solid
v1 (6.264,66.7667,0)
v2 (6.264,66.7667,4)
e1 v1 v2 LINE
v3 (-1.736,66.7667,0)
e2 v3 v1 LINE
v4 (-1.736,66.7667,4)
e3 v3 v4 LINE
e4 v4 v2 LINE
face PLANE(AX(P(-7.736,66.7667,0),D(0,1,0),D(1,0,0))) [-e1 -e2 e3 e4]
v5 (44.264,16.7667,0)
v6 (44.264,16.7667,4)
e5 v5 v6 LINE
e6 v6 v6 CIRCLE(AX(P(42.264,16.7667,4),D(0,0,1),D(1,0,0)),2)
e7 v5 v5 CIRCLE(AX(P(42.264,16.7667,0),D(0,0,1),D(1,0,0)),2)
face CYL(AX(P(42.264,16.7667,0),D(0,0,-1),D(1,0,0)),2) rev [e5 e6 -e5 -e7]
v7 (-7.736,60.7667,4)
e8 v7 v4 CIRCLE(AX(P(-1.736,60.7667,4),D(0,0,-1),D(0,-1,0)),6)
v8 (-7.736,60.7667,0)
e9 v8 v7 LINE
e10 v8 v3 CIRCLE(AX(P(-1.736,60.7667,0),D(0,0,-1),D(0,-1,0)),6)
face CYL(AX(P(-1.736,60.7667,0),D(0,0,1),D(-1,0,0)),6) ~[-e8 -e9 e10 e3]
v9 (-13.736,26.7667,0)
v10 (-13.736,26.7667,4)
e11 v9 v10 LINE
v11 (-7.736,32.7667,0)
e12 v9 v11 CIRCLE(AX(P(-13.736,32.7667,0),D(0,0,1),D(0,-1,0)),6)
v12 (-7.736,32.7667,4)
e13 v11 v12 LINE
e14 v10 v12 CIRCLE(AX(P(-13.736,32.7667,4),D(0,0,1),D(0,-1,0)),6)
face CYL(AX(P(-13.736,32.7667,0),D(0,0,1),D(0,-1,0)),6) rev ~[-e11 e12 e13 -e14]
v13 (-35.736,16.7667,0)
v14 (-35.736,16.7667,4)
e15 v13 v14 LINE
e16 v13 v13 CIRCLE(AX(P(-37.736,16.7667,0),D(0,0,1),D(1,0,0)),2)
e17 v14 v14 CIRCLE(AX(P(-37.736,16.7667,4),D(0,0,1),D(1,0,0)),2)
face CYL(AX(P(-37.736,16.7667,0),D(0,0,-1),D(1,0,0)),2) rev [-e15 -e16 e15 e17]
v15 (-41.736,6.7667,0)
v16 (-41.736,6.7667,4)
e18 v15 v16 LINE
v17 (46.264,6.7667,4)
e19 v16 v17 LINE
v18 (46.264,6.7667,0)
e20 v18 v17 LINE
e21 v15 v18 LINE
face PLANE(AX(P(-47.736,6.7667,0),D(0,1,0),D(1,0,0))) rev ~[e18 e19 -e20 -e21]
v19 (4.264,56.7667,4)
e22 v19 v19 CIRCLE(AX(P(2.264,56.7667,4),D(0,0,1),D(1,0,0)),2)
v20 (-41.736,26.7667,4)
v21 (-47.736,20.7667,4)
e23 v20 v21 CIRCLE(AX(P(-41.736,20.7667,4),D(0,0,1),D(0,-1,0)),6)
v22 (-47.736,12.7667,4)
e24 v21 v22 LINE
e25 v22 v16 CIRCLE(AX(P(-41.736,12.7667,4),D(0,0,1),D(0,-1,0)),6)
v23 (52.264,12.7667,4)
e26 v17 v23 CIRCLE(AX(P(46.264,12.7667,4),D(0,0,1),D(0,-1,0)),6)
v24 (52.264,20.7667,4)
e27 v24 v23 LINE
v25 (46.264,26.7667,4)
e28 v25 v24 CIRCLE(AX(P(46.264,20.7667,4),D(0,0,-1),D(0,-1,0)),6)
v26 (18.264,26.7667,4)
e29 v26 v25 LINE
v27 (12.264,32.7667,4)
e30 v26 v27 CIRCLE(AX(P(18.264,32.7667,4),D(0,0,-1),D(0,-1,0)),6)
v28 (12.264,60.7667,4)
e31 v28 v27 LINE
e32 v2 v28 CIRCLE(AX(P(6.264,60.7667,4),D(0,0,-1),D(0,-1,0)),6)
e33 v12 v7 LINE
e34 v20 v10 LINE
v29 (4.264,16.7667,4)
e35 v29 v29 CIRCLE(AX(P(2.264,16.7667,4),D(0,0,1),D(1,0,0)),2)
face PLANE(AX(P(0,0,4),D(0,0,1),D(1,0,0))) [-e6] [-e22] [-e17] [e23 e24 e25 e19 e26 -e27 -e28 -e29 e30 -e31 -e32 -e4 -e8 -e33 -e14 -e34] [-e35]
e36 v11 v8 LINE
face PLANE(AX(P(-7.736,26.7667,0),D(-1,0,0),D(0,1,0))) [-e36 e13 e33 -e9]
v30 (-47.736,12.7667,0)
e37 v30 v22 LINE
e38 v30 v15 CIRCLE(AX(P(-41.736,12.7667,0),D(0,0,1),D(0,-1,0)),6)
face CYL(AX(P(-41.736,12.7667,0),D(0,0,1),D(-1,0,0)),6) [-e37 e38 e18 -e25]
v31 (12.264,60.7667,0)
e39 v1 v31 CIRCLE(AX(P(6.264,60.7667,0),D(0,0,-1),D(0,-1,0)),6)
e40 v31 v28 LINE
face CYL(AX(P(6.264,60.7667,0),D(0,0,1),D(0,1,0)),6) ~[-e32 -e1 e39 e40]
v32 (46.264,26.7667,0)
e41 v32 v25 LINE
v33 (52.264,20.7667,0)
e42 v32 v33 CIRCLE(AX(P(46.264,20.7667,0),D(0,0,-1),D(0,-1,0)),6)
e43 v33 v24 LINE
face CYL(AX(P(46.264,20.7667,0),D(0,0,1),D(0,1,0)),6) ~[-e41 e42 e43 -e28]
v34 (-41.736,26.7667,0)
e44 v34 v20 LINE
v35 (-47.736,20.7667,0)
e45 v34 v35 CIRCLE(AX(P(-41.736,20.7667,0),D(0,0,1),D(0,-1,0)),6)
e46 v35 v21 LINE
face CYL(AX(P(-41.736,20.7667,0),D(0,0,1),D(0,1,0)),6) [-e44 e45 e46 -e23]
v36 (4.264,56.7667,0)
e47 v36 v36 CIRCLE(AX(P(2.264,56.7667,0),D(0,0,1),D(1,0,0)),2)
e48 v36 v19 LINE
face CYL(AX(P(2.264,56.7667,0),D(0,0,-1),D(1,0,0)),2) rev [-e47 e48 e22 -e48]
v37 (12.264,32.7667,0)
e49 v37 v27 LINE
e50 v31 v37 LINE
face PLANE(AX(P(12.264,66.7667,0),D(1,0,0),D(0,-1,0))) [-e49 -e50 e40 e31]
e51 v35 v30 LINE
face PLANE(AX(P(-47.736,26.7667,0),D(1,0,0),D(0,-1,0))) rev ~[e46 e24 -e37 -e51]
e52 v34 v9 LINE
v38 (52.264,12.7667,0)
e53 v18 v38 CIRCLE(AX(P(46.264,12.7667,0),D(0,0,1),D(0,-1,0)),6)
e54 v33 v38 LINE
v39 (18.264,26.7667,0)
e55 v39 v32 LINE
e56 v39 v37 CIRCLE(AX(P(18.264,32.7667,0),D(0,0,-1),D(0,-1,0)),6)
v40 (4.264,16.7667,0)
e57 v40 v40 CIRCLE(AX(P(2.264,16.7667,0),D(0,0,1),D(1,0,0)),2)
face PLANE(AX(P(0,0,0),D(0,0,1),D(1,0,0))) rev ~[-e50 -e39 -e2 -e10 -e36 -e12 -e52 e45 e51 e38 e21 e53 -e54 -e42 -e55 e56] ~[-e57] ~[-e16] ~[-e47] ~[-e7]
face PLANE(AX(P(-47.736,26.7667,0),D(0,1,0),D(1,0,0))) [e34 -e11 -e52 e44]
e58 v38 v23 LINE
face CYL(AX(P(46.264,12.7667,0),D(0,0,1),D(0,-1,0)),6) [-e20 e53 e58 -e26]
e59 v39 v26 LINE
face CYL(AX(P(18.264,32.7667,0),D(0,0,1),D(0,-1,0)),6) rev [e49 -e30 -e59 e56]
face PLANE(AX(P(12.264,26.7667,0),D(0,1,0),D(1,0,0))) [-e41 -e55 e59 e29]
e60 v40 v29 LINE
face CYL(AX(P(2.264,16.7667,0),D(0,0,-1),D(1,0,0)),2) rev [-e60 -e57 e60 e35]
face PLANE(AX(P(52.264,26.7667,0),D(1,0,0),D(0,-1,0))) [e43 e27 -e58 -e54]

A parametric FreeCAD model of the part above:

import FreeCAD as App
import Part
import Sketcher
from FreeCAD import Vector


def edges_at(feature, points):
    """Names of the edges that pass closest to the given points."""
    edges = feature.Shape.Edges
    near = lambda p: min(range(len(edges)), key=lambda i: edges[i].distToShape(Part.Vertex(*p))[0])
    return sorted({f"Edge{near(p) + 1}" for p in points})

doc = App.newDocument("Part")
params = doc.addObject("Spreadsheet::Sheet", "Params")
for row, (alias, value) in enumerate([
    ("sketch1_diameter", "4 mm"),
    ("sketch1_width", "40 mm"),
    ("sketch1_width2", "100 mm"),
    ("pad1_length", "4 mm"),
    ("fillet_radius", "6 mm"),
], start=1):
    params.set(f"A{row}", alias)
    params.set(f"B{row}", "=" + value)
    params.setAlias(f"B{row}", alias)

body = doc.addObject("PartDesign::Body", "Body")

# Sketch on XY plane
sketch1 = body.newObject("Sketcher::SketchObject", "Sketch")
sketch1.AttachmentSupport = (doc.getObject("XY_Plane"), [""])
sketch1.MapMode = "FlatFace"
sketch1.addGeometry(Part.LineSegment(Vector(-7.736, 26.7667, 0), Vector(-47.736, 26.7667, 0)), False)
sketch1.addGeometry(Part.LineSegment(Vector(-47.736, 26.7667, 0), Vector(-47.736, 6.7667, 0)), False)
sketch1.addGeometry(Part.LineSegment(Vector(-47.736, 6.7667, 0), Vector(52.264, 6.7667, 0)), False)
sketch1.addGeometry(Part.LineSegment(Vector(52.264, 6.7667, 0), Vector(52.264, 26.7667, 0)), False)
sketch1.addGeometry(Part.LineSegment(Vector(52.264, 26.7667, 0), Vector(12.264, 26.7667, 0)), False)
sketch1.addGeometry(Part.LineSegment(Vector(12.264, 26.7667, 0), Vector(12.264, 66.7667, 0)), False)
sketch1.addGeometry(Part.LineSegment(Vector(12.264, 66.7667, 0), Vector(-7.736, 66.7667, 0)), False)
sketch1.addGeometry(Part.LineSegment(Vector(-7.736, 66.7667, 0), Vector(-7.736, 26.7667, 0)), False)
sketch1.addGeometry(Part.Circle(Vector(-37.736, 16.7667, 0), Vector(0, 0, 1), 2), False)
sketch1.addGeometry(Part.Circle(Vector(2.264, 16.7667, 0), Vector(0, 0, 1), 2), False)
sketch1.addGeometry(Part.Circle(Vector(42.264, 16.7667, 0), Vector(0, 0, 1), 2), False)
sketch1.addGeometry(Part.Circle(Vector(2.264, 56.7667, 0), Vector(0, 0, 1), 2), False)
sketch1.addConstraint(Sketcher.Constraint("Coincident", 0, 2, 1, 1))
sketch1.addConstraint(Sketcher.Constraint("Coincident", 1, 2, 2, 1))
sketch1.addConstraint(Sketcher.Constraint("Coincident", 2, 2, 3, 1))
sketch1.addConstraint(Sketcher.Constraint("Coincident", 3, 2, 4, 1))
sketch1.addConstraint(Sketcher.Constraint("Coincident", 4, 2, 5, 1))
sketch1.addConstraint(Sketcher.Constraint("Coincident", 5, 2, 6, 1))
sketch1.addConstraint(Sketcher.Constraint("Coincident", 6, 2, 7, 1))
sketch1.addConstraint(Sketcher.Constraint("Coincident", 7, 2, 0, 1))
sketch1.addConstraint(Sketcher.Constraint("Horizontal", 0))
sketch1.addConstraint(Sketcher.Constraint("Vertical", 1))
sketch1.addConstraint(Sketcher.Constraint("Horizontal", 2))
sketch1.addConstraint(Sketcher.Constraint("Vertical", 3))
sketch1.addConstraint(Sketcher.Constraint("Horizontal", 4))
sketch1.addConstraint(Sketcher.Constraint("Vertical", 5))
sketch1.addConstraint(Sketcher.Constraint("Horizontal", 6))
sketch1.addConstraint(Sketcher.Constraint("Vertical", 7))
sketch1.addConstraint(Sketcher.Constraint("Equal", 8, 9))
sketch1.addConstraint(Sketcher.Constraint("Equal", 9, 10))
sketch1.addConstraint(Sketcher.Constraint("Equal", 10, 11))
sketch1.addConstraint(Sketcher.Constraint("Horizontal", 8, 3, 9, 3))
sketch1.addConstraint(Sketcher.Constraint("Horizontal", 9, 3, 10, 3))
sketch1.addConstraint(Sketcher.Constraint("Horizontal", 0, 2, 3, 2))
sketch1.addConstraint(Sketcher.Constraint("Vertical", 9, 3, 11, 3))
sketch1.addConstraint(Sketcher.Constraint("Equal", 0, 4))
sketch1.addConstraint(Sketcher.Constraint("Equal", 6, 1))
sketch1.addConstraint(Sketcher.Constraint("Equal", 4, 5))
sketch1.addConstraint(Sketcher.Constraint("Diameter", 8, 4.0))
sketch1.addConstraint(Sketcher.Constraint("DistanceX", 0, 2, 0, 1, 40.0))
sketch1.addConstraint(Sketcher.Constraint("DistanceX", 2, 1, 2, 2, 100.0))
sketch1.addConstraint(Sketcher.Constraint("DistanceX", 8, 3, 9, 3, 40.0))
sketch1.addConstraint(Sketcher.Constraint("DistanceX", 9, 3, 10, 3, 40.0))
sketch1.addConstraint(Sketcher.Constraint("DistanceY", 9, 3, 11, 3, 40.0))
sketch1.addConstraint(Sketcher.Constraint("DistanceX", 0, 2, 8, 3, 10.0))
sketch1.addConstraint(Sketcher.Constraint("DistanceY", 8, 3, 0, 2, 10.0))
sketch1.addConstraint(Sketcher.Constraint("DistanceX", 8, 3, -1, 1, 37.736))
sketch1.addConstraint(Sketcher.Constraint("DistanceY", -1, 1, 8, 3, 16.7667))
sketch1.setExpression("Constraints[26]", "Params.sketch1_diameter")
sketch1.setExpression("Constraints[27]", "Params.sketch1_width")
sketch1.setExpression("Constraints[28]", "Params.sketch1_width2")
pad1 = body.newObject("PartDesign::Pad", "Pad")
pad1.Profile = sketch1
pad1.setExpression("Length", "Params.pad1_length")
doc.recompute()

fillet = body.newObject("PartDesign::Fillet", "Fillet")
fillet.Base = (pad1, edges_at(pad1, [
    (12.264, 26.767, 2),
    (12.264, 66.767, 2),
    (-7.736, 66.767, 2),
    (-7.736, 26.767, 2),
    (-47.736, 26.767, 2),
    (52.264, 26.767, 2),
    (-47.736, 6.767, 2),
    (52.264, 6.767, 2),
]))
fillet.setExpression("Radius", "Params.fillet_radius")

doc.recompute()
